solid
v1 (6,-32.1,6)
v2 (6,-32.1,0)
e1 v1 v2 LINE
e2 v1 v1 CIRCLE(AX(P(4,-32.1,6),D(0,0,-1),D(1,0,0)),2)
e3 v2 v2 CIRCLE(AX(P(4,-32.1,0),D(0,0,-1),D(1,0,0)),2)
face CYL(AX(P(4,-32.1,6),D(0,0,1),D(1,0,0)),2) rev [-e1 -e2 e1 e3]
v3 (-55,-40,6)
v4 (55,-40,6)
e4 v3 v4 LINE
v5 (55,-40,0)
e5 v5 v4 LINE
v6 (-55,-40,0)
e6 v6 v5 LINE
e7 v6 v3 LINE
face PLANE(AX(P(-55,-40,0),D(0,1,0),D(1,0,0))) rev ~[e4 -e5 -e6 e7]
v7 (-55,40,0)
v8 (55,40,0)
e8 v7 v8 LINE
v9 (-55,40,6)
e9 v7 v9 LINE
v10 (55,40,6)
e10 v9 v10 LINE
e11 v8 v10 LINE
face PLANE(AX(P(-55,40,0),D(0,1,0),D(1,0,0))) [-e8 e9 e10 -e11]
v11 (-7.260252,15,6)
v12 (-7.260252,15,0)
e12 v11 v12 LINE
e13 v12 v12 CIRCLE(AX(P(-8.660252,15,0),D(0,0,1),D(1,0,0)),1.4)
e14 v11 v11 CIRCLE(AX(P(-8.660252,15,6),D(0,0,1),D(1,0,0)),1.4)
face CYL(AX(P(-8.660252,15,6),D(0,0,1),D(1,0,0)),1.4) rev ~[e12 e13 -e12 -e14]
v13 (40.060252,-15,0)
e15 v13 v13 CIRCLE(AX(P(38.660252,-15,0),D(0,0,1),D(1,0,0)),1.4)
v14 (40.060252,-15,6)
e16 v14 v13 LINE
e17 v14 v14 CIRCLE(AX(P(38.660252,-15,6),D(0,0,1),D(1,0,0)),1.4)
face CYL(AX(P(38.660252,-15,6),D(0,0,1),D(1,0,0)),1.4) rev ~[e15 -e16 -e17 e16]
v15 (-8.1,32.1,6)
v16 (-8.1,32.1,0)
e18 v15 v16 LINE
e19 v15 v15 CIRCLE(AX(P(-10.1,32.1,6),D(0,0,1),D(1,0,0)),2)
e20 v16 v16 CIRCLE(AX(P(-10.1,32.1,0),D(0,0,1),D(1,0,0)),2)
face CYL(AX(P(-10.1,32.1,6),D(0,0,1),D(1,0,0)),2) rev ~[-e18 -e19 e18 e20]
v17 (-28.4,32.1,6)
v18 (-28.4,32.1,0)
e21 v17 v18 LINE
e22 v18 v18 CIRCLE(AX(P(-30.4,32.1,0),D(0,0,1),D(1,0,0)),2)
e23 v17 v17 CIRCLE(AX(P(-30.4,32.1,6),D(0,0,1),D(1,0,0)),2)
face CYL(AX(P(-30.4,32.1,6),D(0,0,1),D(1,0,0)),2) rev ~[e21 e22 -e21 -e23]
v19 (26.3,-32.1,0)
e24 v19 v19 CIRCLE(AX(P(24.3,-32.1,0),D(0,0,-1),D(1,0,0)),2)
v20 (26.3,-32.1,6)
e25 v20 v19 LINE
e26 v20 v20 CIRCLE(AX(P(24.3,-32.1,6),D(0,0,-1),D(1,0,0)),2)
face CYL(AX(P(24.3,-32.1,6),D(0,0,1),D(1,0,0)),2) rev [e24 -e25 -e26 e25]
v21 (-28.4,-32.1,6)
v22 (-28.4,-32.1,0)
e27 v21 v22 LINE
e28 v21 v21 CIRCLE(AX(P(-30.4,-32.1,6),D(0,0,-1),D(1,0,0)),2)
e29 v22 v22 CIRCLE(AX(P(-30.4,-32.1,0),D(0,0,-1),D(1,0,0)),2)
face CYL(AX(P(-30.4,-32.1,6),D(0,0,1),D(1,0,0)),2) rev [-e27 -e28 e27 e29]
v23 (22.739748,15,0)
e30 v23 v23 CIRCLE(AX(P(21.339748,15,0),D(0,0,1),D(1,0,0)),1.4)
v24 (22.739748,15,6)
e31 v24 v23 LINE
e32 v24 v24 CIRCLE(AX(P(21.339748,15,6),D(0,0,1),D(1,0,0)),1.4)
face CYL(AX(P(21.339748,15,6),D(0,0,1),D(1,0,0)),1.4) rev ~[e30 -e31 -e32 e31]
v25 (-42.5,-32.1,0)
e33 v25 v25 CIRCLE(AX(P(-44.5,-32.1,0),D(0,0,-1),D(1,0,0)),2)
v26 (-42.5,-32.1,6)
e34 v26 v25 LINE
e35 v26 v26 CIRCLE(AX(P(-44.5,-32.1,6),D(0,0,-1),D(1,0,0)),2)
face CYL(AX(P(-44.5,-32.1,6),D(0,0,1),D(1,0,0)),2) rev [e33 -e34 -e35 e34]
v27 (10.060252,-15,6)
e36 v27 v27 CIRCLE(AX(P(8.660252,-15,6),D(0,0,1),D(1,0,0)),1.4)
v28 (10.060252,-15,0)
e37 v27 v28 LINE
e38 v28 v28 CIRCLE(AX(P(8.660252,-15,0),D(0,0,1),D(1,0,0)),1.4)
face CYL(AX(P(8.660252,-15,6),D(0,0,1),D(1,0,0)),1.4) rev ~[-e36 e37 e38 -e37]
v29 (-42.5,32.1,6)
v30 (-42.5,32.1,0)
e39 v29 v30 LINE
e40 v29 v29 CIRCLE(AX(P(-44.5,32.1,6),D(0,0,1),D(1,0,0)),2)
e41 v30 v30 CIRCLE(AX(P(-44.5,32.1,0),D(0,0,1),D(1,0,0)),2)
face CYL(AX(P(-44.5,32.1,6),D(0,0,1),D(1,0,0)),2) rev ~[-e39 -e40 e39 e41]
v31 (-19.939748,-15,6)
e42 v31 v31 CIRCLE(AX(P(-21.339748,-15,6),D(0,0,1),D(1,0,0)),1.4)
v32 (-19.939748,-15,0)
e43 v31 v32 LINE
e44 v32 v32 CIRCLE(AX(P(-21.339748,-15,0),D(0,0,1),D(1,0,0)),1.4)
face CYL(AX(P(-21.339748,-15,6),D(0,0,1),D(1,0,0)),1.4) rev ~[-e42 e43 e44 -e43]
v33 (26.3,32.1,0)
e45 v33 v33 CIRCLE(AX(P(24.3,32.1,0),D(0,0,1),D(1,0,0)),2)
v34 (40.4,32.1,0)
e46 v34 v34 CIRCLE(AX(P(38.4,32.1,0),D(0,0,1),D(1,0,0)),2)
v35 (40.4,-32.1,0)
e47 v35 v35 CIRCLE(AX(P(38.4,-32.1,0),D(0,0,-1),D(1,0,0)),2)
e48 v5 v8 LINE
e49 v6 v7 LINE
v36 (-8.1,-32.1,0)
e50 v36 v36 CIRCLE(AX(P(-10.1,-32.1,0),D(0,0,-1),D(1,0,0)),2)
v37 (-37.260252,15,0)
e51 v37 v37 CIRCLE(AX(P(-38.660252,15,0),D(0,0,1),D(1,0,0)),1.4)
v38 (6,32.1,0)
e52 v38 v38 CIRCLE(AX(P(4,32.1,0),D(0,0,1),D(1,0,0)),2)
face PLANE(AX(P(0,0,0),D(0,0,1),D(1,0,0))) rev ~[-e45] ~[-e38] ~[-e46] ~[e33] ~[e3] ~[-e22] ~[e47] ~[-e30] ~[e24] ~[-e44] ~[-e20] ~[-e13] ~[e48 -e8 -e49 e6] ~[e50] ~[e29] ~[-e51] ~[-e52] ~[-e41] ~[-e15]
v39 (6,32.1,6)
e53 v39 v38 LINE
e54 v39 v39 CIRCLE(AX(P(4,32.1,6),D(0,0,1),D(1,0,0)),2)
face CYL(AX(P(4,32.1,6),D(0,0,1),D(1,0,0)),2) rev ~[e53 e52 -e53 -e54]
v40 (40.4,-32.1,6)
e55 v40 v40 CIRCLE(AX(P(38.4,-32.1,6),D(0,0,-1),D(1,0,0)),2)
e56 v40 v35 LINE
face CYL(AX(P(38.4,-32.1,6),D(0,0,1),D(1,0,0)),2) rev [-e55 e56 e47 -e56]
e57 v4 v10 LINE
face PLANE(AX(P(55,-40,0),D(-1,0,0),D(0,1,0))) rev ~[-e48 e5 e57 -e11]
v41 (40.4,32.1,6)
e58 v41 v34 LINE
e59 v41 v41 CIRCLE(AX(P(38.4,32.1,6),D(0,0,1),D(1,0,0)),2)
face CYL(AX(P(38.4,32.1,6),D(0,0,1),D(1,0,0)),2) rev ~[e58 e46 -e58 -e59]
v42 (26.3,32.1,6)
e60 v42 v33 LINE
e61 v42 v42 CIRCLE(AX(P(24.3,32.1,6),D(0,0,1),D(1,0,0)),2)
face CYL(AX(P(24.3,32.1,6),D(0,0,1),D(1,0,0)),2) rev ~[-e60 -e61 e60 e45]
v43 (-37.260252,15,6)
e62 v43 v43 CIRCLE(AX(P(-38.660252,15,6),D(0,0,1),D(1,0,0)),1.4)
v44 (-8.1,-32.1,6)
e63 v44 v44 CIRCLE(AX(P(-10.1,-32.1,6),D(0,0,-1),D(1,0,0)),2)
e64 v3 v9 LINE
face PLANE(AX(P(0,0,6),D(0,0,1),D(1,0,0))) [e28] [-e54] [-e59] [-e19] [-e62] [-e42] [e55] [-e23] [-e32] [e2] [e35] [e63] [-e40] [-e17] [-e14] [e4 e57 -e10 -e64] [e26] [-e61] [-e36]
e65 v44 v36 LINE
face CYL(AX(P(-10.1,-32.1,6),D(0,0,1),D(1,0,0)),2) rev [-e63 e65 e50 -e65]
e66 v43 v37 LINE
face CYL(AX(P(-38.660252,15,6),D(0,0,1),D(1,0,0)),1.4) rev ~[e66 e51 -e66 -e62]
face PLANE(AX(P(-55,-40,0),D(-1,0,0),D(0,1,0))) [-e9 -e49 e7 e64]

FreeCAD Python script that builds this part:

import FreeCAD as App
import Part
import Sketcher

V = App.Vector

doc = App.newDocument("Part")
body = doc.addObject("PartDesign::Body", "Body")

# Sketch on XY plane
sketch1 = body.newObject("Sketcher::SketchObject", "Sketch")
sketch1.AttachmentSupport = (doc.getObject("XY_Plane"), [""])
sketch1.MapMode = "FlatFace"
sketch1.addGeometry(Part.LineSegment(V(-55, 40, 0), V(-55, -40, 0)), False)
sketch1.addGeometry(Part.LineSegment(V(-55, -40, 0), V(55, -40, 0)), False)
sketch1.addGeometry(Part.LineSegment(V(55, -40, 0), V(55, 40, 0)), False)
sketch1.addGeometry(Part.LineSegment(V(55, 40, 0), V(-55, 40, 0)), False)
sketch1.addConstraint(Sketcher.Constraint("Coincident", 0, 2, 1, 1))
sketch1.addConstraint(Sketcher.Constraint("Coincident", 1, 2, 2, 1))
sketch1.addConstraint(Sketcher.Constraint("Coincident", 2, 2, 3, 1))
sketch1.addConstraint(Sketcher.Constraint("Coincident", 3, 2, 0, 1))
sketch1.addConstraint(Sketcher.Constraint("Vertical", 0))
sketch1.addConstraint(Sketcher.Constraint("Horizontal", 1))
sketch1.addConstraint(Sketcher.Constraint("Vertical", 2))
sketch1.addConstraint(Sketcher.Constraint("Horizontal", 3))
sketch1.addConstraint(Sketcher.Constraint("Symmetric", 0, 2, 2, 2, -1, 1))
sketch1.addConstraint(Sketcher.Constraint("DistanceX", 1, 1, 1, 2, 110.0))
sketch1.addConstraint(Sketcher.Constraint("DistanceY", 0, 2, 0, 1, 80.0))
pad1 = body.newObject("PartDesign::Pad", "Pad")
pad1.Profile = sketch1
pad1.Length = 6

# Sketch on XY plane
sketch2 = body.newObject("Sketcher::SketchObject", "Sketch001")
sketch2.AttachmentSupport = (doc.getObject("XY_Plane"), [""])
sketch2.MapMode = "FlatFace"
sketch2.AttachmentOffset = App.Placement(V(0, 0, 6), App.Rotation())
sketch2.addGeometry(Part.Circle(V(-38.7, 15, 0), V(0, 0, 1), 1.4), False)
sketch2.addGeometry(Part.Circle(V(-21.3, -15, 0), V(0, 0, 1), 1.4), False)
sketch2.addGeometry(Part.Circle(V(-8.7, 15, 0), V(0, 0, 1), 1.4), False)
sketch2.addGeometry(Part.Circle(V(8.7, -15, 0), V(0, 0, 1), 1.4), False)
sketch2.addGeometry(Part.Circle(V(21.3, 15, 0), V(0, 0, 1), 1.4), False)
sketch2.addGeometry(Part.Circle(V(38.7, -15, 0), V(0, 0, 1), 1.4), False)
sketch2.addConstraint(Sketcher.Constraint("Equal", 0, 1))
sketch2.addConstraint(Sketcher.Constraint("Equal", 1, 2))
sketch2.addConstraint(Sketcher.Constraint("Equal", 2, 3))
sketch2.addConstraint(Sketcher.Constraint("Equal", 3, 4))
sketch2.addConstraint(Sketcher.Constraint("Equal", 4, 5))
sketch2.addConstraint(Sketcher.Constraint("Symmetric", 2, 3, 3, 3, -1, 1))
sketch2.addConstraint(Sketcher.Constraint("Symmetric", 1, 3, 4, 3, -1, 1))
sketch2.addConstraint(Sketcher.Constraint("Symmetric", 0, 3, 5, 3, -1, 1))
sketch2.addConstraint(Sketcher.Constraint("Horizontal", 0, 3, 2, 3))
sketch2.addConstraint(Sketcher.Constraint("Horizontal", 1, 3, 3, 3))
sketch2.addConstraint(Sketcher.Constraint("Diameter", 0, 2.8))
sketch2.addConstraint(Sketcher.Constraint("DistanceY", -1, 1, 0, 3, 15.0))
sketch2.addConstraint(Sketcher.Constraint("DistanceX", 0, 3, 2, 3, 30.0))
sketch2.addConstraint(Sketcher.Constraint("DistanceX", 1, 3, 3, 3, 30.0))
sketch2.addConstraint(Sketcher.Constraint("DistanceX", 1, 3, -1, 1, 21.339748))
pocket1 = body.newObject("PartDesign::Pocket", "Pocket")
pocket1.Profile = sketch2
pocket1.Length = 8

# Sketch on XY plane
sketch3 = body.newObject("Sketcher::SketchObject", "Sketch002")
sketch3.AttachmentSupport = (doc.getObject("XY_Plane"), [""])
sketch3.MapMode = "FlatFace"
sketch3.AttachmentOffset = App.Placement(V(0, 0, 6), App.Rotation())
sketch3.addGeometry(Part.Circle(V(-44.5, 32.1, 0), V(0, 0, 1), 2), False)
sketch3.addGeometry(Part.Circle(V(38.4, 32.1, 0), V(0, 0, 1), 2), False)
sketch3.addGeometry(Part.Circle(V(-30.4, 32.1, 0), V(0, 0, 1), 2), False)
sketch3.addGeometry(Part.Circle(V(-10.1, 32.1, 0), V(0, 0, 1), 2), False)
sketch3.addGeometry(Part.Circle(V(24.3, 32.1, 0), V(0, 0, 1), 2), False)
sketch3.addGeometry(Part.Circle(V(4, 32.1, 0), V(0, 0, 1), 2), False)
sketch3.addConstraint(Sketcher.Constraint("Equal", 0, 1))
sketch3.addConstraint(Sketcher.Constraint("Equal", 1, 2))
sketch3.addConstraint(Sketcher.Constraint("Equal", 2, 3))
sketch3.addConstraint(Sketcher.Constraint("Equal", 3, 4))
sketch3.addConstraint(Sketcher.Constraint("Equal", 4, 5))
sketch3.addConstraint(Sketcher.Constraint("Horizontal", 0, 3, 1, 3))
sketch3.addConstraint(Sketcher.Constraint("Horizontal", 1, 3, 2, 3))
sketch3.addConstraint(Sketcher.Constraint("Horizontal", 2, 3, 3, 3))
sketch3.addConstraint(Sketcher.Constraint("Horizontal", 3, 3, 4, 3))
sketch3.addConstraint(Sketcher.Constraint("Horizontal", 4, 3, 5, 3))
sketch3.addConstraint(Sketcher.Constraint("Diameter", 0, 4.0))
sketch3.addConstraint(Sketcher.Constraint("DistanceX", -1, 1, 5, 3, 4.0))
sketch3.addConstraint(Sketcher.Constraint("DistanceX", 0, 3, -1, 1, 44.5))
sketch3.addConstraint(Sketcher.Constraint("DistanceY", -1, 1, 0, 3, 32.1))
sketch3.addConstraint(Sketcher.Constraint("DistanceX", -1, 1, 1, 3, 38.4))
sketch3.addConstraint(Sketcher.Constraint("DistanceX", 2, 3, -1, 1, 30.4))
sketch3.addConstraint(Sketcher.Constraint("DistanceX", 3, 3, -1, 1, 10.1))
sketch3.addConstraint(Sketcher.Constraint("DistanceX", -1, 1, 4, 3, 24.3))
pocket2 = body.newObject("PartDesign::Pocket", "Pocket001")
pocket2.Profile = sketch3
pocket2.Length = 6
doc.recompute()

mirrored = body.newObject("PartDesign::Mirrored", "Mirrored")
mirrored.Originals = [pocket2]
mirrored.MirrorPlane = (doc.getObject("XZ_Plane"), [""])
body.Tip = mirrored

doc.recompute()
